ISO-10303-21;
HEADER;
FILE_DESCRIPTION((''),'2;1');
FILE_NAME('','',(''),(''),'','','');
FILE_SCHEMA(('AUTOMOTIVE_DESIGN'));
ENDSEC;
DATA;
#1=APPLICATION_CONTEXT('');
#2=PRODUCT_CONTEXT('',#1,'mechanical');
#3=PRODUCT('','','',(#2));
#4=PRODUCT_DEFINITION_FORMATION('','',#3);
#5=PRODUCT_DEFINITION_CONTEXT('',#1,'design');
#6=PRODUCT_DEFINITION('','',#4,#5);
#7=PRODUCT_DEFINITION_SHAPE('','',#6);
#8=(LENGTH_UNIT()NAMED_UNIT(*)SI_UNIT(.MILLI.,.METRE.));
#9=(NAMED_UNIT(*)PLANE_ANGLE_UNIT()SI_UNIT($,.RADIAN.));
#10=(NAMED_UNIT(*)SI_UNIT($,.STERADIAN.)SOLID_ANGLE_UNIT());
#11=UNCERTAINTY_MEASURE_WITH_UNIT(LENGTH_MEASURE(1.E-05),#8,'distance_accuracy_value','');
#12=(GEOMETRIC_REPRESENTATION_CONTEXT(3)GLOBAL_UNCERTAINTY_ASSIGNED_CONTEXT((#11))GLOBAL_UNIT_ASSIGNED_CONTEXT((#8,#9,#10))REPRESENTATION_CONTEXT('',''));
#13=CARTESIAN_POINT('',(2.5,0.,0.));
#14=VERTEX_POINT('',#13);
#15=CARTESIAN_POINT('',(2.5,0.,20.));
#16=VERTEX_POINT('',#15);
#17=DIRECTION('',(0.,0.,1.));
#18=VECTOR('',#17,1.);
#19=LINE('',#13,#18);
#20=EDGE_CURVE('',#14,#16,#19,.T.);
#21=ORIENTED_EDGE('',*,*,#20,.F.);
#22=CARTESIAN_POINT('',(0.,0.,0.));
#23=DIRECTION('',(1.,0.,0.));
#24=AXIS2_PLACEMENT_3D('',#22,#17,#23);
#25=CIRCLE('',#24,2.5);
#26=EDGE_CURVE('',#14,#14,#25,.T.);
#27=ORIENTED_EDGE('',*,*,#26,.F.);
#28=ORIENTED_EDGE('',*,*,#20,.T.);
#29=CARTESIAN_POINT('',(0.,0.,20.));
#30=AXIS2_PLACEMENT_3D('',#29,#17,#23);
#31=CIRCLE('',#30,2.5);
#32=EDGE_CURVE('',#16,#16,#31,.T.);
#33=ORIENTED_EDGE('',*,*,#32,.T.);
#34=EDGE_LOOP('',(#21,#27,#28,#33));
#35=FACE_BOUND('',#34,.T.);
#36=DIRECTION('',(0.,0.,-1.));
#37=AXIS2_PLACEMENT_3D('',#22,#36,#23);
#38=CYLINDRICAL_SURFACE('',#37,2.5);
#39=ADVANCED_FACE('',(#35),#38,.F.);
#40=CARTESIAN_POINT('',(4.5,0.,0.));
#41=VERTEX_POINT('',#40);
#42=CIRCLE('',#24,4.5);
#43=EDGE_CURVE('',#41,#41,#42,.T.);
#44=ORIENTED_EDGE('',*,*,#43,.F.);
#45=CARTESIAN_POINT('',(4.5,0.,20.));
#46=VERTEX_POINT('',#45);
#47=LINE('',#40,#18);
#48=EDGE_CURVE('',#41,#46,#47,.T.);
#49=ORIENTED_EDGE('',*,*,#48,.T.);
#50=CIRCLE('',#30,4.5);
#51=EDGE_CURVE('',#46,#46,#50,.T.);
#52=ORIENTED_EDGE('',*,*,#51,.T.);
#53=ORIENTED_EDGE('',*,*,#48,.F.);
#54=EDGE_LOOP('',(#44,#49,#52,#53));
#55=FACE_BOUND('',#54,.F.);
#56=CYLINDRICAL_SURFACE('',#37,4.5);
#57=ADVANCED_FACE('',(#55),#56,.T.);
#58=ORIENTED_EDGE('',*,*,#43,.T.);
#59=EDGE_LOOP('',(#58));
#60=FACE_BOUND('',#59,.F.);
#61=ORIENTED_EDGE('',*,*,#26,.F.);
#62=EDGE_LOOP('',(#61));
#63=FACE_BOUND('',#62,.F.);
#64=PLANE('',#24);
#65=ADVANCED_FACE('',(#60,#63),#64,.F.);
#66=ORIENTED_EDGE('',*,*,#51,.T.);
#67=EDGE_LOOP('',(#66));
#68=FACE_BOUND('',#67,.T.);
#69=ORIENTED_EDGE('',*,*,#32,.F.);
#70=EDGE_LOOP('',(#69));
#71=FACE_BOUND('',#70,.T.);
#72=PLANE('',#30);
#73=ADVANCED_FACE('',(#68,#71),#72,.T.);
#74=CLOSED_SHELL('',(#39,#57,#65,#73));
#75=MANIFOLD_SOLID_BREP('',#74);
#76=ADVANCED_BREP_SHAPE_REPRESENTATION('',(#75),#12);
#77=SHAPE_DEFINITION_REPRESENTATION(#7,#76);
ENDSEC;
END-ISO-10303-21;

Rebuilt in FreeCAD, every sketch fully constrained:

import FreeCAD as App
import Part
import Sketcher
from FreeCAD import Vector
Q = App.Units.Quantity

doc = App.newDocument("Part")
body = doc.addObject("PartDesign::Body", "Body")

# Sketch on XY plane
sketch1 = doc.addObject("Sketcher::SketchObject", "Sketch")
body.addObject(sketch1)
sketch1.AttachmentSupport = (doc.XY_Plane, [""])
sketch1.MapMode = "FlatFace"
sketch1.addGeometry(Part.Circle(Vector(0, 0, 0), Vector(0, 0, 1), 4.5), False)
sketch1.addGeometry(Part.Circle(Vector(0, 0, 0), Vector(0, 0, 1), 2.5), False)
sketch1.addConstraint(Sketcher.Constraint("Coincident", 0, 3, -1, 1))
sketch1.addConstraint(Sketcher.Constraint("Coincident", 1, 3, -1, 1))
sketch1.addConstraint(Sketcher.Constraint("Diameter", 0, Q("9 mm")))
sketch1.addConstraint(Sketcher.Constraint("Diameter", 1, Q("5 mm")))
pad1 = doc.addObject("PartDesign::Pad", "Pad")
body.addObject(pad1)
pad1.Profile = sketch1
pad1.Length = 20

doc.recompute()
